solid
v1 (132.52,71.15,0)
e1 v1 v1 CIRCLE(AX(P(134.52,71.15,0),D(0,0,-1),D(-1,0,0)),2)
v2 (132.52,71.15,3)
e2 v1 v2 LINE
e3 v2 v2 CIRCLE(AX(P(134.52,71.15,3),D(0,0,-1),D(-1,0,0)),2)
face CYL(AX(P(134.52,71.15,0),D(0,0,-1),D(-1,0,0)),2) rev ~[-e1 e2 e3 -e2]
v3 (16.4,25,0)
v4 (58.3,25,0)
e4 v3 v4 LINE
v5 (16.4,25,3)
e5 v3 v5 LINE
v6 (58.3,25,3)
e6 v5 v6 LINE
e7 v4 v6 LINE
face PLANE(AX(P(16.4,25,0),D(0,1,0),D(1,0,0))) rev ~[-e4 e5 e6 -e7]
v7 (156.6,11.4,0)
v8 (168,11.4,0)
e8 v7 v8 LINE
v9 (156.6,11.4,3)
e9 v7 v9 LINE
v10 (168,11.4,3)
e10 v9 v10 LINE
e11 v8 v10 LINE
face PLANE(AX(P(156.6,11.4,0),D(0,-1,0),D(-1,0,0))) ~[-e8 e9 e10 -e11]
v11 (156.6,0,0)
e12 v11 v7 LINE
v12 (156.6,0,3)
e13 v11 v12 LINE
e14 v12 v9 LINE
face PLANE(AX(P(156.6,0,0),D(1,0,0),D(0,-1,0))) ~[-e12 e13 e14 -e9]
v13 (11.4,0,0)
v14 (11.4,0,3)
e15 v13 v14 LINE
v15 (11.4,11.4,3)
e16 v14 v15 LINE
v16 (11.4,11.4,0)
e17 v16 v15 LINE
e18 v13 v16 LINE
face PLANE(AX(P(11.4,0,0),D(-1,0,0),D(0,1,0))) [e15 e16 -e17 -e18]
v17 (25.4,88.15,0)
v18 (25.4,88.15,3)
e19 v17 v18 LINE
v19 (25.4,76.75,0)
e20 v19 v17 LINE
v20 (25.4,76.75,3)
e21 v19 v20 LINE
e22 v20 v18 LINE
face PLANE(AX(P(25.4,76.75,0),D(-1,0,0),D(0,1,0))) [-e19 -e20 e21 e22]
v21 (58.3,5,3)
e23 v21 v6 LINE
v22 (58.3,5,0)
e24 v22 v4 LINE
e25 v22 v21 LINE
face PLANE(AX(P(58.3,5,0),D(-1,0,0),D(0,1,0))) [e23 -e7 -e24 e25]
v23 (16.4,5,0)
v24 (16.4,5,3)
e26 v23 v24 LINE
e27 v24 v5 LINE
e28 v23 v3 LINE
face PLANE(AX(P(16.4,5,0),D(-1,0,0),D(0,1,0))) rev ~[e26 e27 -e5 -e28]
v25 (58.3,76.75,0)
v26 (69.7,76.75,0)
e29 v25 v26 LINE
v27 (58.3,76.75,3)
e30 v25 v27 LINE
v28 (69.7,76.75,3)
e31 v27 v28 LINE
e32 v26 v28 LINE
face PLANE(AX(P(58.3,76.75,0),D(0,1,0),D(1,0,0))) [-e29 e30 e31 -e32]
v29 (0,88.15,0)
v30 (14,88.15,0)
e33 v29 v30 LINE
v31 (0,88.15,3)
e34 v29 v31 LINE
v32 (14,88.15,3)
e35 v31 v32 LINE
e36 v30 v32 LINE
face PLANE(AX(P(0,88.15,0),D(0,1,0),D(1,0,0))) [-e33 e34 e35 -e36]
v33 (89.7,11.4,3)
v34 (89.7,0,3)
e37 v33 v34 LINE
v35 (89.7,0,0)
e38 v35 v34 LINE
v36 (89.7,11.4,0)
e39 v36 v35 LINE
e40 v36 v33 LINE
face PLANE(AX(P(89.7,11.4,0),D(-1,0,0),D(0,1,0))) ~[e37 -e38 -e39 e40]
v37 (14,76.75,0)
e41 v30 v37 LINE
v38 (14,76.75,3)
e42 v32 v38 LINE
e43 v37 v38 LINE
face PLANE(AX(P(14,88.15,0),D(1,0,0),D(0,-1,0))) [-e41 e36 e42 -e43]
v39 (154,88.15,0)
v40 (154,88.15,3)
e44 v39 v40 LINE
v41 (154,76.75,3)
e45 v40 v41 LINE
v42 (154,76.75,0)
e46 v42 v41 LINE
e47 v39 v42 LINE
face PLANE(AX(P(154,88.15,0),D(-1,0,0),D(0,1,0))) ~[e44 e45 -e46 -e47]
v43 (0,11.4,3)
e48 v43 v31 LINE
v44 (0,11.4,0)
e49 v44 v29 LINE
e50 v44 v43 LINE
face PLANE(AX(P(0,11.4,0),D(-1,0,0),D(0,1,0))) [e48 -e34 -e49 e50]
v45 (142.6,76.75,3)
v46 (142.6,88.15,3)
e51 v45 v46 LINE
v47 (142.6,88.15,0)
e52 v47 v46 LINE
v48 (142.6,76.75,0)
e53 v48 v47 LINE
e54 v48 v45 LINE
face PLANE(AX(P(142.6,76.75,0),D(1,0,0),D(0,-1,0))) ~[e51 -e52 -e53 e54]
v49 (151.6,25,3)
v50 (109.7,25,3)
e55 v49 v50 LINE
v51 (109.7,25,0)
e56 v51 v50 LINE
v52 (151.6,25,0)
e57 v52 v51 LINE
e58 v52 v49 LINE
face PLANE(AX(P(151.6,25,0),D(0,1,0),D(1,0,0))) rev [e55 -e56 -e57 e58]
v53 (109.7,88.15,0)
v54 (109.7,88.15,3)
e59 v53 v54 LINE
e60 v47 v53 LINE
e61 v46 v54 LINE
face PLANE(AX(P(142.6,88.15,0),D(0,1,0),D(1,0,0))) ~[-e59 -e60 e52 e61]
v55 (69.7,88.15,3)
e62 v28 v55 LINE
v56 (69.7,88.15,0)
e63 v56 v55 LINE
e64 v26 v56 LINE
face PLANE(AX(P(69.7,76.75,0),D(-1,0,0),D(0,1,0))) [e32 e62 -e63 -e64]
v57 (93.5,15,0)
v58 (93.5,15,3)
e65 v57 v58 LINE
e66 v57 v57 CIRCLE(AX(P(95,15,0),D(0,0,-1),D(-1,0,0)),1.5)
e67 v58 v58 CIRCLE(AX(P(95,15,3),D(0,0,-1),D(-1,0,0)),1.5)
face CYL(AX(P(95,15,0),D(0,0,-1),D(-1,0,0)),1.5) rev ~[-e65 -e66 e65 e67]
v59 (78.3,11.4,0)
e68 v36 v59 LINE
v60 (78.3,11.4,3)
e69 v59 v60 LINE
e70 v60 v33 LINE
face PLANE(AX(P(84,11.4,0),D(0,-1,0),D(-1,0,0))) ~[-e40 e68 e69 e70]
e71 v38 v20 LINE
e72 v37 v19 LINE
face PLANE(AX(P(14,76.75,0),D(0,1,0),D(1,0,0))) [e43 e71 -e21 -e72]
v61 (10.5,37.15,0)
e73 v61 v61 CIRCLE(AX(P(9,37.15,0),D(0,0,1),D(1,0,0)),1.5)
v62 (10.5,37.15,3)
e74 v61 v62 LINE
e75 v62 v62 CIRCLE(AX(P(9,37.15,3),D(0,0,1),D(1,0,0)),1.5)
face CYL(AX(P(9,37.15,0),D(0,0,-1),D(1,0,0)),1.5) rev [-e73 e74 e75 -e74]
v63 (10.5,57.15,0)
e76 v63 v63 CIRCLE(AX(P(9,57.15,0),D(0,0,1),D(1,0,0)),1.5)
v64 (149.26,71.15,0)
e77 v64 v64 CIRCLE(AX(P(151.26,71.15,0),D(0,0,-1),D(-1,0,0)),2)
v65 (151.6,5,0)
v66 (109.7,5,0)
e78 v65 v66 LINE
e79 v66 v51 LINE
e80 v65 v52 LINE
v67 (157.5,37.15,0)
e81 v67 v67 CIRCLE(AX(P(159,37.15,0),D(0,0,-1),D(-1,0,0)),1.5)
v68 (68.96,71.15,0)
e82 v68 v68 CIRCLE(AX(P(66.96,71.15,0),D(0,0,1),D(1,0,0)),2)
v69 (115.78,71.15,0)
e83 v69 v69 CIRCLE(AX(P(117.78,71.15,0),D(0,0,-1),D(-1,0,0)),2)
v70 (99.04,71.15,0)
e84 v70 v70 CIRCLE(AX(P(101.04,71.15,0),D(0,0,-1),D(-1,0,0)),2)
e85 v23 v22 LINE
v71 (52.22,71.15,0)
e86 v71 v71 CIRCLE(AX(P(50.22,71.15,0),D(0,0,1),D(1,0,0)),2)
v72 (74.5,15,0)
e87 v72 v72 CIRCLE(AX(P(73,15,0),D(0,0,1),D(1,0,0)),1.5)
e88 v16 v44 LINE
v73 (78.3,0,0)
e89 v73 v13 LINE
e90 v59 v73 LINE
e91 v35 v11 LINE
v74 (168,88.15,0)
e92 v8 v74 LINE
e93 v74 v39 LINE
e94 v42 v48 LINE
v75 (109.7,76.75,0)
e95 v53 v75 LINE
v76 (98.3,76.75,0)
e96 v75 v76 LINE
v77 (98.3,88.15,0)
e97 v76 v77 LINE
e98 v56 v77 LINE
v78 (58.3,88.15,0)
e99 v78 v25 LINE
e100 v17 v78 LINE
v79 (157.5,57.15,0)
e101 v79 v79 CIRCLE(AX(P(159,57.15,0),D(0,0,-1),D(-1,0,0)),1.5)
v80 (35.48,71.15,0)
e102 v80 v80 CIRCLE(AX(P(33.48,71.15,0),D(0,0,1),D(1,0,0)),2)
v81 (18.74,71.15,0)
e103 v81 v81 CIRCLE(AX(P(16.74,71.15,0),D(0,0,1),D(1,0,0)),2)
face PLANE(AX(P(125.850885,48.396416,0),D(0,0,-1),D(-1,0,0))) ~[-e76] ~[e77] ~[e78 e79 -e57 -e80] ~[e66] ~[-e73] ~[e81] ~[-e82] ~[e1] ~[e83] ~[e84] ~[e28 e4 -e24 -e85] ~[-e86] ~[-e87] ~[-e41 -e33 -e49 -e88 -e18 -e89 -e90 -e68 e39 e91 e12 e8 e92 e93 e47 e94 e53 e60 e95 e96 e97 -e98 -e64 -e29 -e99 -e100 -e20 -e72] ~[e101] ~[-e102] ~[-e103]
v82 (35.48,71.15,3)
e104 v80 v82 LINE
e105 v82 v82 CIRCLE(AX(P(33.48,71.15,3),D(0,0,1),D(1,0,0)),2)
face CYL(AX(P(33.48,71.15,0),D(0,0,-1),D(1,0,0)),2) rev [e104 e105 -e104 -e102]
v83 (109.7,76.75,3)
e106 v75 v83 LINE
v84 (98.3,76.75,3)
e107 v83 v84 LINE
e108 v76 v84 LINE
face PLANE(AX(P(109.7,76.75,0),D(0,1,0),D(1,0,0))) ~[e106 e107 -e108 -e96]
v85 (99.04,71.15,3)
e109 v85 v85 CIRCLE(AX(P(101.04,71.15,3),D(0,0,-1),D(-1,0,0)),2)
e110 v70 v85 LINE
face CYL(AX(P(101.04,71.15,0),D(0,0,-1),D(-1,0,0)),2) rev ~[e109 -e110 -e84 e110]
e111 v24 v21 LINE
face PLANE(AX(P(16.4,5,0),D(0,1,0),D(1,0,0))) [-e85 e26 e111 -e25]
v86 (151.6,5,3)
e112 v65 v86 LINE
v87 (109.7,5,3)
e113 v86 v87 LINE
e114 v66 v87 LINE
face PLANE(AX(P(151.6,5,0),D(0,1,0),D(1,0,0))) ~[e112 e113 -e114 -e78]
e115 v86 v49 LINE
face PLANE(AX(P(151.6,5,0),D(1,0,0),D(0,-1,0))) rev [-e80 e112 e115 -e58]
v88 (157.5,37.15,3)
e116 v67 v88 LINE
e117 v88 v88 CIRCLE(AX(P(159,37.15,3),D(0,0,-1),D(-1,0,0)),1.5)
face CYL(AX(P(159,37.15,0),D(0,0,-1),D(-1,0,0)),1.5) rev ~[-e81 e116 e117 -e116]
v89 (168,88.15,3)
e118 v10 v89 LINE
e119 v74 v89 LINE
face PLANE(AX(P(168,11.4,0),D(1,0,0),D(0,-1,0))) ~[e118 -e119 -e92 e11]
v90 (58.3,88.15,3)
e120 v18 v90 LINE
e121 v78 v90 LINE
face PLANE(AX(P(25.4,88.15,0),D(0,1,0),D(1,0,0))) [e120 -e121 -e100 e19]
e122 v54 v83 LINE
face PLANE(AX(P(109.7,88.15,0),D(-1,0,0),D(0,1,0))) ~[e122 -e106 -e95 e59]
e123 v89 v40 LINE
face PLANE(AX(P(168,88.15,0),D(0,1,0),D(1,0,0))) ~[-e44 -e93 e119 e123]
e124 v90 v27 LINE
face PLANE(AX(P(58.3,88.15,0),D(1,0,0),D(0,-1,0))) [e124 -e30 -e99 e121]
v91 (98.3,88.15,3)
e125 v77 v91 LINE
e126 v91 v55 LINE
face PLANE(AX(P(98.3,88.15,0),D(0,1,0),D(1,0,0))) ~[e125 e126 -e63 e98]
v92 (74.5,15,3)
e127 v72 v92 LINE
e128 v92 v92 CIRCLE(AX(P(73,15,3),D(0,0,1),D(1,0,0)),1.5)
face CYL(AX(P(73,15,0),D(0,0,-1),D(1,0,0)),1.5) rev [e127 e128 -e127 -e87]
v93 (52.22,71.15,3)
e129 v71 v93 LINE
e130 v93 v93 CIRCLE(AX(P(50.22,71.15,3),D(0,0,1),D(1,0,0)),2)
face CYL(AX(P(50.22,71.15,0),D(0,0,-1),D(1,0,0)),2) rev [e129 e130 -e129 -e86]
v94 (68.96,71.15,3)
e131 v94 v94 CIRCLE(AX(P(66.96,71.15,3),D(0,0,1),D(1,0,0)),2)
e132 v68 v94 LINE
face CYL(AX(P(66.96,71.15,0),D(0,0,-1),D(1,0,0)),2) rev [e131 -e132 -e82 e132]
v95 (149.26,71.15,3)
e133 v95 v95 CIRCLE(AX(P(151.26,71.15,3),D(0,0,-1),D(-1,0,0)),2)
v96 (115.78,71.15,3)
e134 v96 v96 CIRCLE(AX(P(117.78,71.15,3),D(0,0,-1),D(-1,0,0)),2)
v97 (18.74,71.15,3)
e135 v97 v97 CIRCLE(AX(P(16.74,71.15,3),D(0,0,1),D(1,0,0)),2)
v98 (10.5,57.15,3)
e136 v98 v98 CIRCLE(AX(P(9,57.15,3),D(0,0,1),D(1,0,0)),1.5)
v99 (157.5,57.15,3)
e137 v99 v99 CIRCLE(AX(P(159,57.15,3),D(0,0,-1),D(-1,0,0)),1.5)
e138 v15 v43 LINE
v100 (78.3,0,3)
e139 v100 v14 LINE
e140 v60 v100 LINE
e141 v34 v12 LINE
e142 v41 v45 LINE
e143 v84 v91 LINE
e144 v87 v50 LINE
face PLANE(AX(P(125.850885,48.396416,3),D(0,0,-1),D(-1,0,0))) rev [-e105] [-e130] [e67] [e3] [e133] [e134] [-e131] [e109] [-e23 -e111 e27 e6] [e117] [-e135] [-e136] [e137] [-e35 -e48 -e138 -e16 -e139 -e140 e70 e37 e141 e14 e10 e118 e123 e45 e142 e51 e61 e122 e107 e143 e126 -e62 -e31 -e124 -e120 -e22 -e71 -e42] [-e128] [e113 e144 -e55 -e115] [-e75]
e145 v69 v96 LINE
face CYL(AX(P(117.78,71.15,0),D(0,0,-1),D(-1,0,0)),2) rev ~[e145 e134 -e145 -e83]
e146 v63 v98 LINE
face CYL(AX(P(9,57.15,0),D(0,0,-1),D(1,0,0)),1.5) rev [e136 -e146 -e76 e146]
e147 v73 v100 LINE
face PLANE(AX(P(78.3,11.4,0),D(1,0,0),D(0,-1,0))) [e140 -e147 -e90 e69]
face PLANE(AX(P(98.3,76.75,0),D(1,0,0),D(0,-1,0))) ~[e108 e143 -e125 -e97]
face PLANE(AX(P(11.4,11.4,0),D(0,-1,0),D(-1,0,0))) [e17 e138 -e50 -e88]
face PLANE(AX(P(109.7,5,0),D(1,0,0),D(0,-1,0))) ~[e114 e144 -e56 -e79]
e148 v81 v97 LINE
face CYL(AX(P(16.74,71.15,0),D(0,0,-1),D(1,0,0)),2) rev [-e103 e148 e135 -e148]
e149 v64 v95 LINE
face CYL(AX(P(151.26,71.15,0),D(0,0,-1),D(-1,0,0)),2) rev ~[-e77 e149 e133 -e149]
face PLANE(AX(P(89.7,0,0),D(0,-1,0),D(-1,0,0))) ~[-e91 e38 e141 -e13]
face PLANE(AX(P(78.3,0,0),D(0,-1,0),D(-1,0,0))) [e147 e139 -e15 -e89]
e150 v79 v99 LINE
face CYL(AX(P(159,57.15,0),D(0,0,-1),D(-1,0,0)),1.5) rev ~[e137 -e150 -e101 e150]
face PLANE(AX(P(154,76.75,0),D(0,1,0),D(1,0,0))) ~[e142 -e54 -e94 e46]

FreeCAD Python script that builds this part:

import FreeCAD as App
import Part
import Sketcher
from FreeCAD import Vector
Q = App.Units.Quantity


def add_polygon(sketch, points):
    """Adds a closed chain of lines whose ends are joined by coincident constraints."""
    first, n = sketch.GeometryCount, len(points)
    for a, b in zip(points, points[1:] + points[:1]):
        sketch.addGeometry(Part.LineSegment(App.Vector(*a, 0), App.Vector(*b, 0)), False)
    for i in range(n):
        sketch.addConstraint(Sketcher.Constraint("Coincident", first + i, 2, first + (i + 1) % n, 1))

doc = App.newDocument("Part")
params = doc.addObject("Spreadsheet::Sheet", "Params")
for row, (alias, value) in enumerate([
    ("sketch1_diameter", "3 mm"),
    ("sketch1_diameter2", "4 mm"),
    ("sketch1_width", "14 mm"),
    ("sketch1_height", "20 mm"),
    ("sketch1_width2", "11.4 mm"),
    ("pad1_length", "3 mm"),
], start=1):
    params.set(f"A{row}", alias)
    params.set(f"B{row}", "=" + value)
    params.setAlias(f"B{row}", alias)

body = doc.addObject("PartDesign::Body", "Body")

sketch1 = doc.addObject("Sketcher::SketchObject", "Sketch")
body.addObject(sketch1)
sketch1.AttachmentSupport = (doc.XY_Plane, [""])
sketch1.MapMode = "FlatFace"
add_polygon(sketch1, [(14, 88.15), (0, 88.15), (0, 11.4), (11.4, 11.4), (11.4, 0), (78.3, 0), (78.3, 11.4), (84, 11.4), (84, 88.15), (69.7, 88.15), (69.7, 76.75), (58.3, 76.75), (58.3, 88.15), (25.4, 88.15), (25.4, 76.75), (14, 76.75)])
sketch1.addGeometry(Part.Circle(Vector(73, 15, 0), Vector(0, 0, 1), 1.5), False)
add_polygon(sketch1, [(16.4, 5), (16.4, 25), (58.3, 25), (58.3, 5)])
sketch1.addGeometry(Part.Circle(Vector(9, 37.15, 0), Vector(0, 0, 1), 1.5), False)
sketch1.addGeometry(Part.Circle(Vector(66.96, 71.15, 0), Vector(0, 0, 1), 2), False)
sketch1.addGeometry(Part.Circle(Vector(50.22, 71.15, 0), Vector(0, 0, 1), 2), False)
sketch1.addGeometry(Part.Circle(Vector(33.48, 71.15, 0), Vector(0, 0, 1), 2), False)
sketch1.addGeometry(Part.Circle(Vector(9, 57.15, 0), Vector(0, 0, 1), 1.5), False)
sketch1.addGeometry(Part.Circle(Vector(16.74, 71.15, 0), Vector(0, 0, 1), 2), False)
sketch1.addConstraint([
    Sketcher.Constraint("Horizontal", 0),
    Sketcher.Constraint("Vertical", 1),
    Sketcher.Constraint("Horizontal", 2),
    Sketcher.Constraint("Vertical", 3),
    Sketcher.Constraint("Horizontal", 4),
    Sketcher.Constraint("Vertical", 5),
    Sketcher.Constraint("Horizontal", 6),
    Sketcher.Constraint("Vertical", 7),
    Sketcher.Constraint("Horizontal", 8),
    Sketcher.Constraint("Vertical", 9),
    Sketcher.Constraint("Horizontal", 10),
    Sketcher.Constraint("Vertical", 11),
    Sketcher.Constraint("Horizontal", 12),
    Sketcher.Constraint("Vertical", 13),
    Sketcher.Constraint("Horizontal", 14),
    Sketcher.Constraint("Vertical", 15),
    Sketcher.Constraint("Vertical", 17),
    Sketcher.Constraint("Horizontal", 18),
    Sketcher.Constraint("Vertical", 19),
    Sketcher.Constraint("Horizontal", 20),
    Sketcher.Constraint("Equal", 16, 21),
    Sketcher.Constraint("Equal", 22, 23),
    Sketcher.Constraint("Equal", 23, 24),
    Sketcher.Constraint("Equal", 21, 25),
    Sketcher.Constraint("Equal", 24, 26),
    Sketcher.Constraint("PointOnObject", 0, 2, -2),
    Sketcher.Constraint("PointOnObject", 3, 2, -1),
    Sketcher.Constraint("Horizontal", 22, 3, 23, 3),
    Sketcher.Constraint("Horizontal", 23, 3, 24, 3),
    Sketcher.Constraint("Horizontal", 24, 3, 26, 3),
    Sketcher.Constraint("Horizontal", 2, 2, 5, 2),
    Sketcher.Constraint("Horizontal", 0, 2, 7, 2),
    Sketcher.Constraint("Horizontal", 8, 2, 11, 2),
    Sketcher.Constraint("Horizontal", 10, 2, 13, 2),
    Sketcher.Constraint("Vertical", 21, 3, 25, 3),
    Sketcher.Constraint("Vertical", 11, 2, 18, 2),
    Sketcher.Constraint("Equal", 2, 10),
    Sketcher.Constraint("Equal", 10, 14),
    Sketcher.Constraint("Equal", 14, 3),
    Sketcher.Constraint("Equal", 5, 9),
    Sketcher.Constraint("Diameter", 16, Q("3 mm")),
    Sketcher.Constraint("Diameter", 22, Q("4 mm")),
    Sketcher.Constraint("DistanceX", 0, 2, 0, 1, Q("14 mm")),
    Sketcher.Constraint("DistanceY", 17, 1, 17, 2, Q("20 mm")),
    Sketcher.Constraint("DistanceX", 2, 1, 2, 2, Q("11.4 mm")),
    Sketcher.Constraint("DistanceX", 4, 1, 4, 2, Q("66.9 mm")),
    Sketcher.Constraint("DistanceX", 6, 1, 6, 2, Q("5.7 mm")),
    Sketcher.Constraint("DistanceX", 8, 2, 8, 1, Q("14.3 mm")),
    Sketcher.Constraint("DistanceX", 18, 1, 18, 2, Q("41.9 mm")),
    Sketcher.Constraint("DistanceX", -1, 1, 16, 3, Q("73 mm")),
    Sketcher.Constraint("DistanceY", -1, 1, 16, 3, Q("15 mm")),
    Sketcher.Constraint("DistanceX", -1, 1, 21, 3, Q("9 mm")),
    Sketcher.Constraint("DistanceY", -1, 1, 17, 2, Q("25 mm")),
    Sketcher.Constraint("DistanceY", 21, 3, 22, 3, Q("34 mm")),
    Sketcher.Constraint("DistanceY", 21, 3, 25, 3, Q("20 mm")),
    Sketcher.Constraint("DistanceY", 26, 3, 0, 2, Q("17 mm")),
    Sketcher.Constraint("DistanceY", 1, 2, 1, 1, Q("76.75 mm")),
    Sketcher.Constraint("DistanceX", -1, 1, 22, 3, Q("66.96 mm")),
    Sketcher.Constraint("DistanceX", -1, 1, 23, 3, Q("50.22 mm")),
    Sketcher.Constraint("DistanceX", -1, 1, 24, 3, Q("33.48 mm")),
    Sketcher.Constraint("DistanceX", -1, 1, 26, 3, Q("16.74 mm")),
])
sketch1.setExpression("Constraints[60]", "Params.sketch1_diameter")
sketch1.setExpression("Constraints[61]", "Params.sketch1_diameter2")
sketch1.setExpression("Constraints[62]", "Params.sketch1_width")
sketch1.setExpression("Constraints[63]", "Params.sketch1_height")
sketch1.setExpression("Constraints[64]", "Params.sketch1_width2")
pad1 = doc.addObject("PartDesign::Pad", "Pad")
body.addObject(pad1)
pad1.Profile = sketch1
pad1.setExpression("Length", "Params.pad1_length")
doc.recompute()

datumplane = doc.addObject("PartDesign::Plane", "DatumPlane")
body.addObject(datumplane)
datumplane.AttachmentSupport = (doc.YZ_Plane, [""])
datumplane.MapMode = "FlatFace"
datumplane.AttachmentOffset = App.Placement(Vector(0, 0, 84), App.Rotation())
mirrored = doc.addObject("PartDesign::Mirrored", "Mirrored")
body.addObject(mirrored)
mirrored.Originals = [pad1]
mirrored.MirrorPlane = (datumplane, [""])
body.Tip = mirrored

doc.recompute()
